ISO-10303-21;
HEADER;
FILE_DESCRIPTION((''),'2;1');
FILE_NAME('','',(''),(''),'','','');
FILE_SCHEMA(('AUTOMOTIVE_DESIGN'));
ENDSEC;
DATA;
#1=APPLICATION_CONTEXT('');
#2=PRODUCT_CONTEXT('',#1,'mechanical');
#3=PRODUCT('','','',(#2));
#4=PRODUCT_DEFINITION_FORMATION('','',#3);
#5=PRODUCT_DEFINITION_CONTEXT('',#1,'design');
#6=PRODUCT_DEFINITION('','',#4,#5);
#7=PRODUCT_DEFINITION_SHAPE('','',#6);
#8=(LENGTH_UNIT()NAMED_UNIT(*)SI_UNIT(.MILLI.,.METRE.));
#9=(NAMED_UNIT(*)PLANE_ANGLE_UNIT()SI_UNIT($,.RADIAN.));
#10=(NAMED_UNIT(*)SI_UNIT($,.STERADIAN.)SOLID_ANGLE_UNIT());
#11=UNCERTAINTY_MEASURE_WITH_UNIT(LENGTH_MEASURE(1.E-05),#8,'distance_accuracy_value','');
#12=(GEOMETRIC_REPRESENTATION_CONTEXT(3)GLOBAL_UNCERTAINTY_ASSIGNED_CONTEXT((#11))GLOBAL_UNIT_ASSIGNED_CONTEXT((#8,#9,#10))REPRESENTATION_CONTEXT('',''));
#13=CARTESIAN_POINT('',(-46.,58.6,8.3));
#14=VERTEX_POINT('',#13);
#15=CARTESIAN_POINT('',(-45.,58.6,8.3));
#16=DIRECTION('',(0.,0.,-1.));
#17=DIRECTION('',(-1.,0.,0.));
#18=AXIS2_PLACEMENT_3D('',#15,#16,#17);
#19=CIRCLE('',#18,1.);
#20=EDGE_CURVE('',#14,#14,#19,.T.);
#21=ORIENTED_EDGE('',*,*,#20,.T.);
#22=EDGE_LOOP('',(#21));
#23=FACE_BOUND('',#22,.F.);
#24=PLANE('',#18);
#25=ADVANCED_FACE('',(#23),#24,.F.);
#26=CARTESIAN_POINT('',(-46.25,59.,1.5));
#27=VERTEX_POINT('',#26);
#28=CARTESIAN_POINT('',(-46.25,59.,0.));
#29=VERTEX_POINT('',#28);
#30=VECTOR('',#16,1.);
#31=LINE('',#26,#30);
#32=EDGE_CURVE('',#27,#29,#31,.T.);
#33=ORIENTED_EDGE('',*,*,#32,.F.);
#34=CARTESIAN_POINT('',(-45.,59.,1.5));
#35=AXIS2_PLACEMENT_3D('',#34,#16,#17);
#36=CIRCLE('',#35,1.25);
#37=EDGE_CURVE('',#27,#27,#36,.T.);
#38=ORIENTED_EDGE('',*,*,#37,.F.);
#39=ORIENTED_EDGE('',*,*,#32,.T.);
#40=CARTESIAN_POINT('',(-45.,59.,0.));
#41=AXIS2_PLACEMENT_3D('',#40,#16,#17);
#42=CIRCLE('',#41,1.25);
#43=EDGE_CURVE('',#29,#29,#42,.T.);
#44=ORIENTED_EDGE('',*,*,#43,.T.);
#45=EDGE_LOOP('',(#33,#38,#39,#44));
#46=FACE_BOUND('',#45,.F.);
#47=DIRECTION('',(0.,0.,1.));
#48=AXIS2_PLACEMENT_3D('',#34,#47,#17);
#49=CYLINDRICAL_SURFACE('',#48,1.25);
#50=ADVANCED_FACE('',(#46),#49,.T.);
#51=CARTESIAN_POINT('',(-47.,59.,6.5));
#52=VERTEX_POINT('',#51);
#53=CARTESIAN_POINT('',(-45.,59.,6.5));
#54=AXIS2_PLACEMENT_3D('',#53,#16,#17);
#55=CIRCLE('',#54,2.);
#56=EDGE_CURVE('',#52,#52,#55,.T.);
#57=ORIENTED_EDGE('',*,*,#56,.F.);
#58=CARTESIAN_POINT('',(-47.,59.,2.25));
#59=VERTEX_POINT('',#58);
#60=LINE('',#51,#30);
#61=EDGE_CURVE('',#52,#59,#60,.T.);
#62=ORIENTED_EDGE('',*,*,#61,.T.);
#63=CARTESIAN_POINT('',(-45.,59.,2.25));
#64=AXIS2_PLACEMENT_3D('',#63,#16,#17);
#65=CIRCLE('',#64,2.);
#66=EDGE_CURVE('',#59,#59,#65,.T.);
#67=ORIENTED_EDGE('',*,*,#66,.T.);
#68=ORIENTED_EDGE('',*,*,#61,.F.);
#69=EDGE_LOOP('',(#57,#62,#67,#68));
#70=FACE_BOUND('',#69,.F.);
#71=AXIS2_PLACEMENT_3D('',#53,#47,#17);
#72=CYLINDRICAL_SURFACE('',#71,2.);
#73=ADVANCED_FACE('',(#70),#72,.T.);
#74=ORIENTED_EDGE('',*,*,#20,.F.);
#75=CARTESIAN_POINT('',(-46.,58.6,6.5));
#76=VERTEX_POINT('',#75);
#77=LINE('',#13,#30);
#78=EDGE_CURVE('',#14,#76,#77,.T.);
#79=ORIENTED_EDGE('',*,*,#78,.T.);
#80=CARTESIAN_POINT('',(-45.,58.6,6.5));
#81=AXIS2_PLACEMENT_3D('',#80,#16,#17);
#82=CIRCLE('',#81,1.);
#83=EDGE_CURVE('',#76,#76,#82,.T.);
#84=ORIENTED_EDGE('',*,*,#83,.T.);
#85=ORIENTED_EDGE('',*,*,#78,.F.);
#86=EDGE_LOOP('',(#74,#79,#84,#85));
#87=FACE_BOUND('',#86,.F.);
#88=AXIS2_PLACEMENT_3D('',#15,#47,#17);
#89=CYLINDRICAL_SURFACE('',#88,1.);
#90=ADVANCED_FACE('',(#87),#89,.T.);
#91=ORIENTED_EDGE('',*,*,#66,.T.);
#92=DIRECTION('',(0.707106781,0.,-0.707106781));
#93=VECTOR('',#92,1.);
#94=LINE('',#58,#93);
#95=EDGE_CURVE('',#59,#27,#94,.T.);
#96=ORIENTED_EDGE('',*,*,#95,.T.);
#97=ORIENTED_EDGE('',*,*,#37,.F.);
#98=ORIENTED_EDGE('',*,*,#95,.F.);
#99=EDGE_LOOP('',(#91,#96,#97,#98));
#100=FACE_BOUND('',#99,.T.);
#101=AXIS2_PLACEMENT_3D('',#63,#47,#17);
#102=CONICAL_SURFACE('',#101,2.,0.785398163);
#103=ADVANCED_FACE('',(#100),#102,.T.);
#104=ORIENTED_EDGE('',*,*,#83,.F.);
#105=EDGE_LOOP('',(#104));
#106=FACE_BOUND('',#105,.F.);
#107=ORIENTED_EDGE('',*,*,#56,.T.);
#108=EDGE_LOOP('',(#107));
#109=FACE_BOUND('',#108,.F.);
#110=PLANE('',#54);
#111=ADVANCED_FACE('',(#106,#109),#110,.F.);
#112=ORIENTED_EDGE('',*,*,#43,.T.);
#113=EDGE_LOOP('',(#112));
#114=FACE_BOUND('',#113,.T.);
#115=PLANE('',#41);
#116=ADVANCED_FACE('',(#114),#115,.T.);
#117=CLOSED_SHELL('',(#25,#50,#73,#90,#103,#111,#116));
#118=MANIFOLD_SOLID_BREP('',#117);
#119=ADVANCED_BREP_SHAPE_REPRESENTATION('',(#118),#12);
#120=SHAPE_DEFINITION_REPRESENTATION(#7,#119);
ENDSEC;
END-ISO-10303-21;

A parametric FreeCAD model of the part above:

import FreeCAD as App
import Part
import Sketcher

V = App.Vector


def edges_at(feature, points):
    """Names of the edges that pass closest to the given points."""
    edges = feature.Shape.Edges
    near = lambda p: min(range(len(edges)), key=lambda i: edges[i].distToShape(Part.Vertex(*p))[0])
    return sorted({f"Edge{near(p) + 1}" for p in points})

doc = App.newDocument("Part")
params = doc.addObject("Spreadsheet::Sheet", "Params")
for row, (alias, value) in enumerate([
    ("sketch1_diameter", "4 mm"),
    ("pad1_length", "5 mm"),
    ("chamfer_size", "0.75 mm"),
    ("sketch2_diameter", "2 mm"),
    ("pad2_length", "1.8 mm"),
    ("sketch3_diameter", "2.5 mm"),
    ("pad3_length", "1.5 mm"),
], start=1):
    params.set(f"A{row}", alias)
    params.set(f"B{row}", "=" + value)
    params.setAlias(f"B{row}", alias)

body = doc.addObject("PartDesign::Body", "Body")

# Sketch on XY plane
sketch1 = body.newObject("Sketcher::SketchObject", "Sketch")
sketch1.AttachmentSupport = (doc.getObject("XY_Plane"), [""])
sketch1.MapMode = "FlatFace"
sketch1.addGeometry(Part.Circle(V(0, 0, 0), V(0, 0, 1), 2), False)
sketch1.addConstraint([
    Sketcher.Constraint("Coincident", 0, 3, -1, 1),
    Sketcher.Constraint("Diameter", 0, 4.0),
])
sketch1.setExpression("Constraints[1]", "Params.sketch1_diameter")
pad1 = body.newObject("PartDesign::Pad", "Pad")
pad1.Profile = sketch1
pad1.setExpression("Length", "Params.pad1_length")
doc.recompute()

chamfer = body.newObject("PartDesign::Chamfer", "Chamfer")
chamfer.Base = (pad1, edges_at(pad1, [(-2, 0, 5)]))
chamfer.setExpression("Size", "Params.chamfer_size")
body2 = doc.addObject("PartDesign::Body", "Body001")
doc.recompute()

body.Placement = App.Placement(V(0, -6, 0), App.Rotation(V(0, 0, 1), 0))
boolean = body2.newObject("PartDesign::Boolean", "Boolean")
boolean.Type = "Fuse"
boolean.addObjects([body])
body3 = doc.addObject("PartDesign::Body", "Body002")

# Sketch on XY plane
sketch2 = body3.newObject("Sketcher::SketchObject", "Sketch001")
sketch2.AttachmentSupport = (doc.getObject("XY_Plane002"), [""])
sketch2.MapMode = "FlatFace"
sketch2.AttachmentOffset = App.Placement(V(0, 0, -1.8), App.Rotation())
sketch2.addGeometry(Part.Circle(V(0, 0, 0), V(0, 0, 1), 1), False)
sketch2.addConstraint([
    Sketcher.Constraint("Coincident", 0, 3, -1, 1),
    Sketcher.Constraint("Diameter", 0, 2.0),
])
sketch2.setExpression("Constraints[1]", "Params.sketch2_diameter")
pad2 = body3.newObject("PartDesign::Pad", "Pad001")
pad2.Profile = sketch2
pad2.setExpression("Length", "Params.pad2_length")
body4 = doc.addObject("PartDesign::Body", "Body003")
doc.recompute()

body3.Placement = App.Placement(V(0, -6.4, 0), App.Rotation(V(0, 0, 1), 0))
boolean2 = body4.newObject("PartDesign::Boolean", "Boolean001")
boolean2.Type = "Fuse"
boolean2.addObjects([body3])
body5 = doc.addObject("PartDesign::Body", "Body004")

# Sketch on XY plane
sketch3 = body5.newObject("Sketcher::SketchObject", "Sketch002")
sketch3.AttachmentSupport = (doc.getObject("XY_Plane004"), [""])
sketch3.MapMode = "FlatFace"
sketch3.AttachmentOffset = App.Placement(V(0, 0, 5), App.Rotation())
sketch3.addGeometry(Part.Circle(V(0, 0, 0), V(0, 0, 1), 1.2), False)
sketch3.addConstraint([
    Sketcher.Constraint("Coincident", 0, 3, -1, 1),
    Sketcher.Constraint("Diameter", 0, 2.5),
])
sketch3.setExpression("Constraints[1]", "Params.sketch3_diameter")
pad3 = body5.newObject("PartDesign::Pad", "Pad002")
pad3.Profile = sketch3
pad3.setExpression("Length", "Params.pad3_length")
body6 = doc.addObject("PartDesign::Body", "Body005")
doc.recompute()

body5.Placement = App.Placement(V(0, -6, 0), App.Rotation(V(0, 0, 1), 0))
boolean3 = body6.newObject("PartDesign::Boolean", "Boolean002")
boolean3.Type = "Fuse"
boolean3.addObjects([body5])
doc.recompute()

boolean4 = body6.newObject("PartDesign::Boolean", "Boolean003")
boolean4.Type = "Fuse"
boolean4.addObjects([body2])
doc.recompute()

boolean5 = body6.newObject("PartDesign::Boolean", "Boolean004")
boolean5.Type = "Fuse"
boolean5.addObjects([body4])
body7 = doc.addObject("PartDesign::Body", "Body006")
doc.recompute()

body6.Placement = App.Placement(V(-45, 65, 6.5), App.Rotation(V(0, 1, 0), 180))
boolean6 = body7.newObject("PartDesign::Boolean", "Boolean005")
boolean6.Type = "Fuse"
boolean6.addObjects([body6])

doc.recompute()
